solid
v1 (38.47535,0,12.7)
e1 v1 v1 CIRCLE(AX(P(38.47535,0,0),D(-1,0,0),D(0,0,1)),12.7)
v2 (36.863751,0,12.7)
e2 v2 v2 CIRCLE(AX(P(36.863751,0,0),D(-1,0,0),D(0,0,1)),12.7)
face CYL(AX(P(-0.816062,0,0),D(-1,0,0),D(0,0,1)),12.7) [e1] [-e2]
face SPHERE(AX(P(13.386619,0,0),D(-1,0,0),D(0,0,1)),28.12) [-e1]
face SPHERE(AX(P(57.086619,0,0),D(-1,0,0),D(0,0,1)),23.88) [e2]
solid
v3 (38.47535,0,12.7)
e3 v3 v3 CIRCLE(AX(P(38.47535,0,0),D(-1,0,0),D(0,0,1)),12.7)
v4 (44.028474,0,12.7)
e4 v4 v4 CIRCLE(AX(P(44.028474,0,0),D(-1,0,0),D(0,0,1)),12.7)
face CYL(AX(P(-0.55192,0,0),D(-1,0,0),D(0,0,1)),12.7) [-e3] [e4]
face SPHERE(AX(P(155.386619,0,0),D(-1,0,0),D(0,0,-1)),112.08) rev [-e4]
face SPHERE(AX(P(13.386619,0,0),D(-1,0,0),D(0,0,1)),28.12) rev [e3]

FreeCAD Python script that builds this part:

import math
import FreeCAD as App
import Part
import Sketcher

V = App.Vector

doc = App.newDocument("Part")
params = doc.addObject("Spreadsheet::Sheet", "Params")
for row, (alias, value) in enumerate([
    ("sketch1_radius", "23.88 mm"),
    ("sketch1_radius2", "28.12 mm"),
    ("sketch1_width", "8.3 mm"),
    ("revolution_angle", "360 deg"),
    ("sketch2_radius", "28.12 mm"),
    ("sketch2_radius2", "112.08 mm"),
    ("sketch2_width", "1.8 mm"),
    ("revolution2_angle", "360 deg"),
], start=1):
    params.set(f"A{row}", alias)
    params.set(f"B{row}", "=" + value)
    params.setAlias(f"B{row}", alias)

body = doc.addObject("PartDesign::Body", "Body")

# Sketch on XZ plane
sketch1 = doc.addObject("Sketcher::SketchObject", "Sketch")
body.addObject(sketch1)
sketch1.AttachmentSupport = (doc.XZ_Plane, [""])
sketch1.MapMode = "FlatFace"
sketch1.addGeometry([
    Part.ArcOfCircle(Part.Circle(V(57.1, 0, 0), V(0, 0, 1), 23.9), math.radians(-180), math.radians(-148)),
    Part.LineSegment(V(33.2, 0, 0), V(41.5, 0, 0)),
    Part.ArcOfCircle(Part.Circle(V(13.4, 0, 0), V(0, 0, 1), 28.1), math.radians(-27), math.radians(0)),
    Part.LineSegment(V(38.5, -12.7, 0), V(36.9, -12.7, 0)),
], False)
sketch1.addConstraint([
    Sketcher.Constraint("Coincident", 0, 1, 1, 1),
    Sketcher.Constraint("Coincident", 1, 2, 2, 2),
    Sketcher.Constraint("Coincident", 2, 1, 3, 1),
    Sketcher.Constraint("Coincident", 3, 2, 0, 2),
    Sketcher.Constraint("Horizontal", 1),
    Sketcher.Constraint("Horizontal", 3),
    Sketcher.Constraint("PointOnObject", 0, 3, -1),
    Sketcher.Constraint("PointOnObject", 2, 3, -1),
    Sketcher.Constraint("PointOnObject", 0, 1, -1),
    Sketcher.Constraint("Radius", 0, 23.88),
    Sketcher.Constraint("Radius", 2, 28.12),
    Sketcher.Constraint("DistanceX", 1, 1, 1, 2, 8.3),
    Sketcher.Constraint("DistanceY", 2, 1, -1, 1, 12.7),
    Sketcher.Constraint("DistanceX", -1, 1, 0, 3, 57.086619),
])
sketch1.setExpression("Constraints[9]", "Params.sketch1_radius")
sketch1.setExpression("Constraints[10]", "Params.sketch1_radius2")
sketch1.setExpression("Constraints[11]", "Params.sketch1_width")
revolution = doc.addObject("PartDesign::Revolution", "Revolution")
body.addObject(revolution)
revolution.Profile = sketch1
revolution.ReferenceAxis = (sketch1, ["H_Axis"])
revolution.setExpression("Angle", "Params.revolution_angle")
body2 = doc.addObject("PartDesign::Body", "Body001")

# Sketch on XZ plane
sketch2 = doc.addObject("Sketcher::SketchObject", "Sketch001")
body2.addObject(sketch2)
sketch2.AttachmentSupport = (doc.getObject("XZ_Plane001"), [""])
sketch2.MapMode = "FlatFace"
sketch2.addGeometry([
    Part.LineSegment(V(44, -12.7, 0), V(38.5, -12.7, 0)),
    Part.ArcOfCircle(Part.Circle(V(13.4, 0, 0), V(0, 0, 1), 28.1), math.radians(-27), math.radians(0)),
    Part.LineSegment(V(41.5, 0, 0), V(43.3, 0, 0)),
    Part.ArcOfCircle(Part.Circle(V(155.4, 0, 0), V(0, 0, 1), 112.1), math.radians(-180), math.radians(-173.49)),
], False)
sketch2.addConstraint([
    Sketcher.Constraint("Coincident", 0, 2, 1, 1),
    Sketcher.Constraint("Coincident", 1, 2, 2, 1),
    Sketcher.Constraint("Coincident", 2, 2, 3, 1),
    Sketcher.Constraint("Coincident", 3, 2, 0, 1),
    Sketcher.Constraint("Horizontal", 0),
    Sketcher.Constraint("Horizontal", 2),
    Sketcher.Constraint("PointOnObject", 1, 3, -1),
    Sketcher.Constraint("PointOnObject", 3, 3, -1),
    Sketcher.Constraint("PointOnObject", 1, 2, -1),
    Sketcher.Constraint("Radius", 1, 28.12),
    Sketcher.Constraint("Radius", 3, 112.08),
    Sketcher.Constraint("DistanceX", 2, 1, 2, 2, 1.8),
    Sketcher.Constraint("DistanceY", 0, 2, -1, 1, 12.7),
    Sketcher.Constraint("DistanceX", -1, 1, 1, 3, 13.386619),
])
sketch2.setExpression("Constraints[9]", "Params.sketch2_radius")
sketch2.setExpression("Constraints[10]", "Params.sketch2_radius2")
sketch2.setExpression("Constraints[11]", "Params.sketch2_width")
revolution2 = doc.addObject("PartDesign::Revolution", "Revolution001")
body2.addObject(revolution2)
revolution2.Profile = sketch2
revolution2.ReferenceAxis = (sketch2, ["H_Axis"])
revolution2.setExpression("Angle", "Params.revolution2_angle")

doc.recompute()
